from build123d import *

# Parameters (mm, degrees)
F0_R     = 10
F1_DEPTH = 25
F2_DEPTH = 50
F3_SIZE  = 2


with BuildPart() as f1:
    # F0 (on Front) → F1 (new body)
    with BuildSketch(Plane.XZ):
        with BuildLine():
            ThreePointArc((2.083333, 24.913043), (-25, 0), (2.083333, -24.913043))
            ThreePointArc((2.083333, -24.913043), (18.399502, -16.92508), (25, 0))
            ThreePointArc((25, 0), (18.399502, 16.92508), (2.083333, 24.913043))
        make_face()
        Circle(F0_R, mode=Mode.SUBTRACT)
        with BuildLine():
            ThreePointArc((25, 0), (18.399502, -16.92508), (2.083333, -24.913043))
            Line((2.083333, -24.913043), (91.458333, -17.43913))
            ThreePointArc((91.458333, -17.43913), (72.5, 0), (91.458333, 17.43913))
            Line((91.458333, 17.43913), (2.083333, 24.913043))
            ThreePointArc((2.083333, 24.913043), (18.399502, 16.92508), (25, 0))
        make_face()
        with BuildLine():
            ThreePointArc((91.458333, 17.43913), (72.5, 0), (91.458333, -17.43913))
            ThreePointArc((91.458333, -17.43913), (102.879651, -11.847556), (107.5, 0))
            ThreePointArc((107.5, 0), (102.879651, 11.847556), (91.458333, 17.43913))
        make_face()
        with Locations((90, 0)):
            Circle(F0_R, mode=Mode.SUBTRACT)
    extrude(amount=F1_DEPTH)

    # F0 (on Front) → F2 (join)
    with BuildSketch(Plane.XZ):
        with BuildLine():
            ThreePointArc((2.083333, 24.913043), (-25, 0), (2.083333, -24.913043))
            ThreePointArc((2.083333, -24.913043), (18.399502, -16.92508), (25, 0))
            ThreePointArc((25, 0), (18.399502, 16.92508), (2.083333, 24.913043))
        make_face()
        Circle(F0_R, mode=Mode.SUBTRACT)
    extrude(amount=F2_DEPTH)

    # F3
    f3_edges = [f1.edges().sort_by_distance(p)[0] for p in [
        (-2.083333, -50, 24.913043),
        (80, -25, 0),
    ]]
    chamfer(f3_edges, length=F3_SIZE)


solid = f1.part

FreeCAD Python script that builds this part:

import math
import FreeCAD as App
import Part
import Sketcher


def edges_at(feature, points):
    """Names of the edges that pass closest to the given points."""
    edges = feature.Shape.Edges
    near = lambda p: min(range(len(edges)), key=lambda i: edges[i].distToShape(Part.Vertex(*p))[0])
    return sorted({f"Edge{near(p) + 1}" for p in points})

doc = App.newDocument("Part")
body = doc.addObject("PartDesign::Body", "Body")

sketch1 = doc.addObject("Sketcher::SketchObject", "Sketch")
body.addObject(sketch1)
sketch1.AttachmentSupport = (doc.XZ_Plane, [""])
sketch1.MapMode = "FlatFace"
sketch1.addGeometry([
    Part.ArcOfCircle(Part.Circle(App.Vector(0, 0, 0), App.Vector(0, 0, 1), 25), math.radians(85.219808), math.radians(274.780192)),
    Part.LineSegment(App.Vector(2.083333, -24.913043, 0), App.Vector(91.458333, -17.43913, 0)),
    Part.ArcOfCircle(Part.Circle(App.Vector(90, 0, 0), App.Vector(0, 0, 1), 17.5), math.radians(-85.219809), math.radians(-0.000001)),
    Part.ArcOfCircle(Part.Circle(App.Vector(90, 0, 0), App.Vector(0, 0, 1), 17.5), math.radians(0.000001), math.radians(85.219809)),
    Part.LineSegment(App.Vector(91.458333, 17.43913, 0), App.Vector(2.083333, 24.913043, 0)),
    Part.Circle(App.Vector(0, 0, 0), App.Vector(0, 0, 1), 10),
    Part.Circle(App.Vector(90, 0, 0), App.Vector(0, 0, 1), 10),
], False)
sketch1.addConstraint([
    Sketcher.Constraint("Tangent", 0, 2, 1, 1),
    Sketcher.Constraint("Tangent", 1, 2, 2, 1),
    Sketcher.Constraint("Tangent", 2, 2, 3, 1),
    Sketcher.Constraint("Tangent", 3, 2, 4, 1),
    Sketcher.Constraint("Tangent", 4, 2, 0, 1),
    Sketcher.Constraint("Coincident", 0, 3, -1, 1),
    Sketcher.Constraint("Coincident", 5, 3, -1, 1),
    Sketcher.Constraint("Coincident", 6, 3, 2, 3),
    Sketcher.Constraint("Equal", 2, 3),
    Sketcher.Constraint("Equal", 5, 6),
    Sketcher.Constraint("PointOnObject", 2, 3, -1),
    Sketcher.Constraint("PointOnObject", 2, 2, -1),
    Sketcher.Constraint("Diameter", 5, 20.0),
    Sketcher.Constraint("Radius", 0, 25.0),
    Sketcher.Constraint("Radius", 2, 17.5),
    Sketcher.Constraint("DistanceX", -1, 1, 2, 3, 90.0),
])
pad1 = doc.addObject("PartDesign::Pad", "Pad")
body.addObject(pad1)
pad1.Profile = sketch1
pad1.Length = 25

sketch2 = doc.addObject("Sketcher::SketchObject", "Sketch001")
body.addObject(sketch2)
sketch2.AttachmentSupport = (doc.XZ_Plane, [""])
sketch2.MapMode = "FlatFace"
sketch2.addGeometry([
    Part.ArcOfCircle(Part.Circle(App.Vector(0, 0, 0), App.Vector(0, 0, 1), 25), math.radians(85.219808), math.radians(274.780192)),
    Part.ArcOfCircle(Part.Circle(App.Vector(0.000001, -0.000001, 0), App.Vector(0, 0, 1), 24.999999), math.radians(-85.219811), math.radians(0.000001)),
    Part.ArcOfCircle(Part.Circle(App.Vector(0.000001, 0.000001, 0), App.Vector(0, 0, 1), 24.999999), math.radians(-0.000001), math.radians(85.219811)),
    Part.Circle(App.Vector(0, 0, 0), App.Vector(0, 0, 1), 10),
], False)
sketch2.addConstraint([
    Sketcher.Constraint("Tangent", 0, 2, 1, 1),
    Sketcher.Constraint("Tangent", 1, 2, 2, 1),
    Sketcher.Constraint("Tangent", 2, 2, 0, 1),
    Sketcher.Constraint("Coincident", 0, 3, -1, 1),
    Sketcher.Constraint("Coincident", 3, 3, -1, 1),
    Sketcher.Constraint("PointOnObject", 1, 2, -1),
    Sketcher.Constraint("Vertical", 0, 2, 2, 2),
    Sketcher.Constraint("Diameter", 3, 20.0),
    Sketcher.Constraint("Radius", 0, 25.0),
    Sketcher.Constraint("DistanceX", -1, 1, 0, 2, 2.083333),
])
pad2 = doc.addObject("PartDesign::Pad", "Pad001")
body.addObject(pad2)
pad2.Profile = sketch2
pad2.Length = 50
doc.recompute()

chamfer = doc.addObject("PartDesign::Chamfer", "Chamfer")
body.addObject(chamfer)
chamfer.Base = (pad2, edges_at(pad2, [(-25, -50, 0), (80, -25, 0)]))
chamfer.Size = 2

doc.recompute()
